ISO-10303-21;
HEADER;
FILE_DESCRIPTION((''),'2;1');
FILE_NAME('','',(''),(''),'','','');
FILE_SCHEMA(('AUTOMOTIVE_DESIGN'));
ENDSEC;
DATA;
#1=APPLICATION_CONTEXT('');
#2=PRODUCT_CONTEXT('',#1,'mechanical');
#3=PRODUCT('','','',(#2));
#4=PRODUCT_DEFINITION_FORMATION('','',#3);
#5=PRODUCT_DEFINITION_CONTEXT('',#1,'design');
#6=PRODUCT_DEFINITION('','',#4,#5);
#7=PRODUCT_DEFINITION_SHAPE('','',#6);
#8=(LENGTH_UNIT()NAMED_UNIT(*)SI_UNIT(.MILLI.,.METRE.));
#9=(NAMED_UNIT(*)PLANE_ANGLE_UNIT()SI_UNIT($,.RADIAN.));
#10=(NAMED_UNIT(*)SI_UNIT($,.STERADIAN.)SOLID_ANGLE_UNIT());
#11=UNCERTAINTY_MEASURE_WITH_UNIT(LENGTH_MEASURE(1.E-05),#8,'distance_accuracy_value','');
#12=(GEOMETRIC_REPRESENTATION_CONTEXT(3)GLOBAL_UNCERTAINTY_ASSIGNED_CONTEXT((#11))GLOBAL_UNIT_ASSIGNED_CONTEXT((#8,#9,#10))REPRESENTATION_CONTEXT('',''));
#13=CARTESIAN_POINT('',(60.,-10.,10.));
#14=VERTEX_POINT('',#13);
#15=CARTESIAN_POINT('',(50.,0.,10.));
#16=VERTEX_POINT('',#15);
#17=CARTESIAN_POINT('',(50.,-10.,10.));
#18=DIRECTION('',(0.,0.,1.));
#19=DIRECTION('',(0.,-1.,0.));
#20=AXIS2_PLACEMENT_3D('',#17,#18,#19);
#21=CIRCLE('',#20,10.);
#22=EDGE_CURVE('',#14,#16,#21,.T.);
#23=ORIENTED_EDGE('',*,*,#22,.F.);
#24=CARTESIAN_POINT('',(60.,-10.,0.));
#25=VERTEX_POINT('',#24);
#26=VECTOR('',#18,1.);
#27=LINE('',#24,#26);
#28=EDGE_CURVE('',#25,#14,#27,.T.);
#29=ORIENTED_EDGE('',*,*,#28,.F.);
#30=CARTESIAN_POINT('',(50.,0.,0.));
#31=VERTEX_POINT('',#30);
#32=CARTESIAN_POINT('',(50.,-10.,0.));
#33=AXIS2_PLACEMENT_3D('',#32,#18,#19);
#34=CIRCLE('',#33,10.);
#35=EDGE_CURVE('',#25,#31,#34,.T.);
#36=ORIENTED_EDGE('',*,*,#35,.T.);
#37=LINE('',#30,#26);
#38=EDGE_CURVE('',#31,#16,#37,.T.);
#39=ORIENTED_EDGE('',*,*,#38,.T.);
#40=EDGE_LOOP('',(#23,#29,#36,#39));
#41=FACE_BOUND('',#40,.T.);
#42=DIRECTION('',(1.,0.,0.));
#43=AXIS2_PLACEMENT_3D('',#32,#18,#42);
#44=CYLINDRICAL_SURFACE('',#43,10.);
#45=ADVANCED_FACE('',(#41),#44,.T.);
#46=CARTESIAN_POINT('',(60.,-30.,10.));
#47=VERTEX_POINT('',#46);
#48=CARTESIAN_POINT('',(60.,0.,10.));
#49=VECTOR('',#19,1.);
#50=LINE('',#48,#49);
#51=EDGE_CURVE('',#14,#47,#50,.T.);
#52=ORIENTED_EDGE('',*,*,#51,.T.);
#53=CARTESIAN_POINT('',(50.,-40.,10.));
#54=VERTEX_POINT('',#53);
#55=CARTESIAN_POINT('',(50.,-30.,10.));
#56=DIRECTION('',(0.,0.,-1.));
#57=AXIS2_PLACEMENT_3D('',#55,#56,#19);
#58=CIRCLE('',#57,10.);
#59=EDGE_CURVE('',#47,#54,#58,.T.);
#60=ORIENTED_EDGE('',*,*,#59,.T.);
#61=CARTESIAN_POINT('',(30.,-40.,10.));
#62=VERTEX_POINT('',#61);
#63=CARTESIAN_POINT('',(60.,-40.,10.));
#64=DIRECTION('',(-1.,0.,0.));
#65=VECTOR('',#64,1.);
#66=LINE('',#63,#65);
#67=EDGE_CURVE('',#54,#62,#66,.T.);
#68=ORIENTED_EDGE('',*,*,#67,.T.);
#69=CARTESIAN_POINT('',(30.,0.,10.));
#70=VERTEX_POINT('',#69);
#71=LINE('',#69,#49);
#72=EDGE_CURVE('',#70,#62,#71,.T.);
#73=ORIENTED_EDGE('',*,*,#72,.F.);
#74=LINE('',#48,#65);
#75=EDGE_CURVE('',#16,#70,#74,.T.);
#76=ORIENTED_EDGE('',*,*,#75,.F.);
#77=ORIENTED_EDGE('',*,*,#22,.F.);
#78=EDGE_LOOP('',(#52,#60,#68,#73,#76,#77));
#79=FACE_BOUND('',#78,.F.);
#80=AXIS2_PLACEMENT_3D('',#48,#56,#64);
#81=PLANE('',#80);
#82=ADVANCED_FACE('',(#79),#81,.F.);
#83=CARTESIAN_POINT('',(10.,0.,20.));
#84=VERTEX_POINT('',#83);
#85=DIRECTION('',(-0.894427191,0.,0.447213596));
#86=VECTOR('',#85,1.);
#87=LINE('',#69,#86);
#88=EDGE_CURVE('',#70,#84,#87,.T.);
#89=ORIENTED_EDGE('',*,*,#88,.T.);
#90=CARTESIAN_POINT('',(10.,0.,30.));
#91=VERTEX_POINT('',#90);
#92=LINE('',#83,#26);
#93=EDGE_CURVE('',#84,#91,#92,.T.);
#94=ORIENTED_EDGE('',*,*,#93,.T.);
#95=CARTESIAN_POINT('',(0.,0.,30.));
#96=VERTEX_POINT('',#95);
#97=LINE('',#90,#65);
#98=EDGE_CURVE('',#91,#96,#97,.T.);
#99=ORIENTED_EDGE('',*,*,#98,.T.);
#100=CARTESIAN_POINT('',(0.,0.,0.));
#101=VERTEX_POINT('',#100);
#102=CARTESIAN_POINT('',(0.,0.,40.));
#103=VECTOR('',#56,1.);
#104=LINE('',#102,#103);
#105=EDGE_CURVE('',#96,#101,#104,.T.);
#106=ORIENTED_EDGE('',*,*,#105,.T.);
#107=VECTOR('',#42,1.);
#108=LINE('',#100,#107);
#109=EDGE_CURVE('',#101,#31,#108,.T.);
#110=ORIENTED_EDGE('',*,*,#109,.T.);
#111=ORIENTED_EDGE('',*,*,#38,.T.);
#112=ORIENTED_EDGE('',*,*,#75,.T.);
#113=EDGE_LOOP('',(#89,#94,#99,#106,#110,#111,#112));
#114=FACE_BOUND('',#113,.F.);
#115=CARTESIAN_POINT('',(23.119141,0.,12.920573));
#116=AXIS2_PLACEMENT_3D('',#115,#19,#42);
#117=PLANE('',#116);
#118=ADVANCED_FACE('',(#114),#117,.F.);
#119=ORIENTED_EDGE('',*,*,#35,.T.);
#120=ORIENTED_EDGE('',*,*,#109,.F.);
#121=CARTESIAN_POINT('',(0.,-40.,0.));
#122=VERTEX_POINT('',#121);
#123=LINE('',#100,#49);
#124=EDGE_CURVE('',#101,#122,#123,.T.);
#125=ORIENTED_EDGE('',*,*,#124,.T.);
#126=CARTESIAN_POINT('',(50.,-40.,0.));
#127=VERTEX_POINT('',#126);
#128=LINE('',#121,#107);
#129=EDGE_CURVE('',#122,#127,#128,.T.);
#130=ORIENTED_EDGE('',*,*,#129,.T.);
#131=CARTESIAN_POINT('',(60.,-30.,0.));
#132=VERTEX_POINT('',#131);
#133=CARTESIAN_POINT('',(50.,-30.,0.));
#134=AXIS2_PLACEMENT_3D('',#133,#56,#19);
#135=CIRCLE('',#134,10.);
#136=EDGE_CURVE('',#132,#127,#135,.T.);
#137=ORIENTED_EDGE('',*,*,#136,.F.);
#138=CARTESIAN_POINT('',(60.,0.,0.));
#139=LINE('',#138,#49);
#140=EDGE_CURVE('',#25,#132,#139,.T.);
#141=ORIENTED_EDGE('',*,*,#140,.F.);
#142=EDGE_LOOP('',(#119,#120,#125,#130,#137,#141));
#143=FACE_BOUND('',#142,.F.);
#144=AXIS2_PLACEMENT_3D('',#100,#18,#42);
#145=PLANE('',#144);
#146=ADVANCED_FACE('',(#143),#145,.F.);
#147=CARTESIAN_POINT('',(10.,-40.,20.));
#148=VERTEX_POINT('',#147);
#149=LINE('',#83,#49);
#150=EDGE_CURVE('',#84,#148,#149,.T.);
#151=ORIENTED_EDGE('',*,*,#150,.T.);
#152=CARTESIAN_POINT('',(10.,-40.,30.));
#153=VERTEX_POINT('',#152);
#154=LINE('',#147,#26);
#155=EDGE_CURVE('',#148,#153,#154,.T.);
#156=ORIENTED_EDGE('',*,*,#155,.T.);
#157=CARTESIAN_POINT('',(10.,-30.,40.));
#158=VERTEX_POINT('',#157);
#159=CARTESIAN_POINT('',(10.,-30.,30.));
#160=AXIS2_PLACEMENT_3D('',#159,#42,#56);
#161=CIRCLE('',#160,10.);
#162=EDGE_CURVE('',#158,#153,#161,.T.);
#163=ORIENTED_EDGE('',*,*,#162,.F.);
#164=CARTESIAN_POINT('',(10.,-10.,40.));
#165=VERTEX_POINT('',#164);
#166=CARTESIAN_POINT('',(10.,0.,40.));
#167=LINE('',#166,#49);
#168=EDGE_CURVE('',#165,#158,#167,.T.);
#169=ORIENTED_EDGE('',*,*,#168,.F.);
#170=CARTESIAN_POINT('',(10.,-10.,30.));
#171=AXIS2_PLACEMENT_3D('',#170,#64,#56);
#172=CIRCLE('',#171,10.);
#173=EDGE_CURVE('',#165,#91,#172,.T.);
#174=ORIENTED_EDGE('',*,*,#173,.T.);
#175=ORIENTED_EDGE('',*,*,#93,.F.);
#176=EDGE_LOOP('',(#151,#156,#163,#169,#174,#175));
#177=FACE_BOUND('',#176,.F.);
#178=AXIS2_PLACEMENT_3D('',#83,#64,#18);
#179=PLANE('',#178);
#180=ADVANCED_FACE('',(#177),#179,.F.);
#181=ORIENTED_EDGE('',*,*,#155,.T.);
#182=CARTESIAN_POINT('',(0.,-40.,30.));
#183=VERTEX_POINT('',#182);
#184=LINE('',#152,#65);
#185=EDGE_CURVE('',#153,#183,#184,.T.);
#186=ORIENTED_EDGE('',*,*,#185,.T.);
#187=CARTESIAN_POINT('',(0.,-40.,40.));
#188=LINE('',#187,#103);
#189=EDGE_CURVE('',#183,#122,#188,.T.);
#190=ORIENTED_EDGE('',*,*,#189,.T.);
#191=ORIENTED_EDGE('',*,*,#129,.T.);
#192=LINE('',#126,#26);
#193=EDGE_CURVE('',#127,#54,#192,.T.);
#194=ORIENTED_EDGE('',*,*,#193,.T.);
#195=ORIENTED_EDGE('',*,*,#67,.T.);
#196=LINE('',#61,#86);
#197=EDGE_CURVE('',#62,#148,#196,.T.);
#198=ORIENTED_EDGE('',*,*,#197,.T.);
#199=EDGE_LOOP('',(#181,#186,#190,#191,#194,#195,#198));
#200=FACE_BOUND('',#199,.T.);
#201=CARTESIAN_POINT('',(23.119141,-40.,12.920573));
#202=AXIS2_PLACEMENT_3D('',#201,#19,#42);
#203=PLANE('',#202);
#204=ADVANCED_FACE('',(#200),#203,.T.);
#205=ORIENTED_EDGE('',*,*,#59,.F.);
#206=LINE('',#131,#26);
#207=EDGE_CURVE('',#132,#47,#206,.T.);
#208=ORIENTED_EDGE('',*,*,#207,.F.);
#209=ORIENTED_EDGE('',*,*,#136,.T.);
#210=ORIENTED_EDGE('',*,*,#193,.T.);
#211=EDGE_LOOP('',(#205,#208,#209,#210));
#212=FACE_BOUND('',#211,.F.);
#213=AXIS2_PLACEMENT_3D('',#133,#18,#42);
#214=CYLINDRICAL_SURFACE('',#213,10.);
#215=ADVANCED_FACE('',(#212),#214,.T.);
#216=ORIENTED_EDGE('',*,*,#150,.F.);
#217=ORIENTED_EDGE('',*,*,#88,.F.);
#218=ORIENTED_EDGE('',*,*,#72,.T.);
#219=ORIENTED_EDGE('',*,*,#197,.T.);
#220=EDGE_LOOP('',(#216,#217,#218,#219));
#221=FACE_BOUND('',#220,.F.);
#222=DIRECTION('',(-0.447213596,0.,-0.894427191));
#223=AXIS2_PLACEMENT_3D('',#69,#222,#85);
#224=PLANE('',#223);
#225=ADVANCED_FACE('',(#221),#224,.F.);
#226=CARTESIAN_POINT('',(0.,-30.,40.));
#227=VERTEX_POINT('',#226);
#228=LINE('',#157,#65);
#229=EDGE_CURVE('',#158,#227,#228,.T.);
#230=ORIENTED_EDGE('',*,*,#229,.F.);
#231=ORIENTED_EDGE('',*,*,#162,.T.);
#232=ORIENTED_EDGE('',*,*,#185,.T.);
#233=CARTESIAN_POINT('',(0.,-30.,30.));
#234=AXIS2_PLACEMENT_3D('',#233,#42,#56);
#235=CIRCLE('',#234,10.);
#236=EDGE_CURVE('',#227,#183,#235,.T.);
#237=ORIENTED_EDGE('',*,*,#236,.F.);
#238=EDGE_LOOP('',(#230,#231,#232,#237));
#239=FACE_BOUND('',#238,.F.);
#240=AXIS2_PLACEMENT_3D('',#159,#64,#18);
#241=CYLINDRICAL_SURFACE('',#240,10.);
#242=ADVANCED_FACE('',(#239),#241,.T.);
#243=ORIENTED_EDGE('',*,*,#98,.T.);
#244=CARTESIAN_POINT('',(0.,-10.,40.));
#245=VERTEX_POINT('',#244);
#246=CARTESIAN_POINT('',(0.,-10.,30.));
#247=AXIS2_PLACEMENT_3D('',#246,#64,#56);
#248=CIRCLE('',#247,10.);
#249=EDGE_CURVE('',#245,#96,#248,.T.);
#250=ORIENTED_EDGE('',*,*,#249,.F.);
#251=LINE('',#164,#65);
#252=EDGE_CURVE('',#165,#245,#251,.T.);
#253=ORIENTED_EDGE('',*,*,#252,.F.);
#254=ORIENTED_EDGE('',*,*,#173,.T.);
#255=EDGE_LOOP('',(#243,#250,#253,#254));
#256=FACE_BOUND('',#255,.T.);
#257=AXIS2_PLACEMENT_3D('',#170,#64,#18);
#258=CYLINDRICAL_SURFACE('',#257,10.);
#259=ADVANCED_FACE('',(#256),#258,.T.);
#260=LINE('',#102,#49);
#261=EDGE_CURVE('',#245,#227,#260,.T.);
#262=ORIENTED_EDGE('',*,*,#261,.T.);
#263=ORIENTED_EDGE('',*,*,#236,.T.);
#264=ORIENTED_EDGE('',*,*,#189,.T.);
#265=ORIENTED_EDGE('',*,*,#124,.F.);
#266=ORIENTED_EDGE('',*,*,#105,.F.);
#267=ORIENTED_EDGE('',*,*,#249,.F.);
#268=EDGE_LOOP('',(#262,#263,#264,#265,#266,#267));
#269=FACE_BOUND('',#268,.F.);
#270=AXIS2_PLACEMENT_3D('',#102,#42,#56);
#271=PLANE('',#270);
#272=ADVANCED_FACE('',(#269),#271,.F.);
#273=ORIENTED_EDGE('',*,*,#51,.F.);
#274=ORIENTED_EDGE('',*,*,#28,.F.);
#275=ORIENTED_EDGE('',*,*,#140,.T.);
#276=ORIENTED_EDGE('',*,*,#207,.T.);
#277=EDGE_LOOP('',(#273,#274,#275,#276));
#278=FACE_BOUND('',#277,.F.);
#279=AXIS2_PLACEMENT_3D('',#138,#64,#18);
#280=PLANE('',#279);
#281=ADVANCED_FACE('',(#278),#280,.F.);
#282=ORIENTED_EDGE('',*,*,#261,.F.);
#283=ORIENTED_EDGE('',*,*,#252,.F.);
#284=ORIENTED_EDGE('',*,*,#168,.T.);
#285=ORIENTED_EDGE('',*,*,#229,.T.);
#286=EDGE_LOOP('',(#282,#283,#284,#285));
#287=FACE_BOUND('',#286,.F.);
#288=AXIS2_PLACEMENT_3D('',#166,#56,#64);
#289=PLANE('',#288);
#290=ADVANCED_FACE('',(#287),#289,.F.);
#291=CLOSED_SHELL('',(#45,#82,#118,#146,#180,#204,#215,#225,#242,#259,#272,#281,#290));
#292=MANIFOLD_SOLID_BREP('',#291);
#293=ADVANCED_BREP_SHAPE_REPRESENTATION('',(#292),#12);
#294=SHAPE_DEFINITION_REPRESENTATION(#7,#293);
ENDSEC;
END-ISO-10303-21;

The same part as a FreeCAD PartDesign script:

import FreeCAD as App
import Part
import Sketcher
from FreeCAD import Vector
Q = App.Units.Quantity


def edges_at(feature, points):
    """Names of the edges that pass closest to the given points."""
    edges = feature.Shape.Edges
    near = lambda p: min(range(len(edges)), key=lambda i: edges[i].distToShape(Part.Vertex(*p))[0])
    return sorted({f"Edge{near(p) + 1}" for p in points})


def add_polygon(sketch, points):
    """Adds a closed chain of lines whose ends are joined by coincident constraints."""
    first, n = sketch.GeometryCount, len(points)
    for a, b in zip(points, points[1:] + points[:1]):
        sketch.addGeometry(Part.LineSegment(App.Vector(*a, 0), App.Vector(*b, 0)), False)
    for i in range(n):
        sketch.addConstraint(Sketcher.Constraint("Coincident", first + i, 2, first + (i + 1) % n, 1))

doc = App.newDocument("Part")
body = doc.addObject("PartDesign::Body", "Body")

# Sketch on XZ plane
sketch1 = body.newObject("Sketcher::SketchObject", "Sketch")
sketch1.AttachmentSupport = (doc.getObject("XZ_Plane"), [""])
sketch1.MapMode = "FlatFace"
add_polygon(sketch1, [(0, 40), (0, 0), (60, 0), (60, 10), (30, 10), (10, 20), (10, 40)])  # lines 0-6
sketch1.addConstraint([
    Sketcher.Constraint("Vertical", 0),
    Sketcher.Constraint("Horizontal", 1),
    Sketcher.Constraint("Vertical", 2),
    Sketcher.Constraint("Horizontal", 3),
    Sketcher.Constraint("Vertical", 5),
    Sketcher.Constraint("Horizontal", 6),
    Sketcher.Constraint("Coincident", 0, 2, -1, 1),
    Sketcher.Constraint("Equal", 6, 2),
    Sketcher.Constraint("DistanceX", 1, 1, 1, 2, Q("60 mm")),
    Sketcher.Constraint("DistanceX", 3, 2, 3, 1, Q("30 mm")),
    Sketcher.Constraint("DistanceX", 6, 2, 6, 1, Q("10 mm")),
    Sketcher.Constraint("DistanceY", 0, 2, 0, 1, Q("40 mm")),
    Sketcher.Constraint("DistanceY", 5, 1, 5, 2, Q("20 mm")),
])
pad1 = body.newObject("PartDesign::Pad", "Pad")
pad1.Profile = sketch1
pad1.Length = 40
doc.recompute()

fillet = body.newObject("PartDesign::Fillet", "Fillet")
fillet.Base = (pad1, edges_at(pad1, [
    (60, -40, 5),
    (60, 0, 5),
    (5, -40, 40),
    (5, 0, 40),
]))
fillet.Radius = 10

doc.recompute()
